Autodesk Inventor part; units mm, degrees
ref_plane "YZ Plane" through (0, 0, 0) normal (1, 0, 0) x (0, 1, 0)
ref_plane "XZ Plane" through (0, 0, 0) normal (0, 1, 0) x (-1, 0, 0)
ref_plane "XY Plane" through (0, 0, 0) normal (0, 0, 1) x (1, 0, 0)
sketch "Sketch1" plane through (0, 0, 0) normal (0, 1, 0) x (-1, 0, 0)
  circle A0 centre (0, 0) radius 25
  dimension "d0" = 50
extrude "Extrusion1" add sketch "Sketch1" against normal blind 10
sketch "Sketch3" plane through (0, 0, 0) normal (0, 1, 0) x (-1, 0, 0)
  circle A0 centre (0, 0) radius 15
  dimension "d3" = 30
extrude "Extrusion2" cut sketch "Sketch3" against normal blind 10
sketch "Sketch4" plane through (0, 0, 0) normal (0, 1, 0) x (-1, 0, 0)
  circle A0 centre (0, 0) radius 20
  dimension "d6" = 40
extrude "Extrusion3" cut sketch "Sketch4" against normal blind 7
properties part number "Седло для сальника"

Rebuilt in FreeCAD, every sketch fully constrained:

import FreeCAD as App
import Part
import Sketcher
from FreeCAD import Vector
Q = App.Units.Quantity

doc = App.newDocument("Part")
body = doc.addObject("PartDesign::Body", "Body")

# Sketch on XZ plane
sketch1 = body.newObject("Sketcher::SketchObject", "Sketch")
sketch1.AttachmentSupport = (doc.getObject("XZ_Plane"), [""])
sketch1.MapMode = "FlatFace"
sketch1.addGeometry(Part.Circle(Vector(0, 0, 0), Vector(0, 0, 1), 25), False)
sketch1.addConstraint(Sketcher.Constraint("Coincident", 0, 3, -1, 1))
sketch1.addConstraint(Sketcher.Constraint("Diameter", 0, Q("50 mm")))
pad1 = body.newObject("PartDesign::Pad", "Pad")
pad1.Profile = sketch1
pad1.Length = 10

# Sketch on XZ plane
sketch2 = body.newObject("Sketcher::SketchObject", "Sketch001")
sketch2.AttachmentSupport = (doc.getObject("XZ_Plane"), [""])
sketch2.MapMode = "FlatFace"
sketch2.addGeometry(Part.Circle(Vector(0, 0, 0), Vector(0, 0, 1), 15), False)
sketch2.addConstraint(Sketcher.Constraint("Coincident", 0, 3, -1, 1))
sketch2.addConstraint(Sketcher.Constraint("Diameter", 0, Q("30 mm")))
pocket1 = body.newObject("PartDesign::Pocket", "Pocket")
pocket1.Profile = sketch2
pocket1.Length = 10
pocket1.Reversed = True

# Sketch on XZ plane
sketch3 = body.newObject("Sketcher::SketchObject", "Sketch002")
sketch3.AttachmentSupport = (doc.getObject("XZ_Plane"), [""])
sketch3.MapMode = "FlatFace"
sketch3.addGeometry(Part.Circle(Vector(0, 0, 0), Vector(0, 0, 1), 20), False)
sketch3.addConstraint(Sketcher.Constraint("Coincident", 0, 3, -1, 1))
sketch3.addConstraint(Sketcher.Constraint("Diameter", 0, Q("40 mm")))
pocket2 = body.newObject("PartDesign::Pocket", "Pocket001")
pocket2.Profile = sketch3
pocket2.Length = 7
pocket2.Reversed = True

doc.recompute()
